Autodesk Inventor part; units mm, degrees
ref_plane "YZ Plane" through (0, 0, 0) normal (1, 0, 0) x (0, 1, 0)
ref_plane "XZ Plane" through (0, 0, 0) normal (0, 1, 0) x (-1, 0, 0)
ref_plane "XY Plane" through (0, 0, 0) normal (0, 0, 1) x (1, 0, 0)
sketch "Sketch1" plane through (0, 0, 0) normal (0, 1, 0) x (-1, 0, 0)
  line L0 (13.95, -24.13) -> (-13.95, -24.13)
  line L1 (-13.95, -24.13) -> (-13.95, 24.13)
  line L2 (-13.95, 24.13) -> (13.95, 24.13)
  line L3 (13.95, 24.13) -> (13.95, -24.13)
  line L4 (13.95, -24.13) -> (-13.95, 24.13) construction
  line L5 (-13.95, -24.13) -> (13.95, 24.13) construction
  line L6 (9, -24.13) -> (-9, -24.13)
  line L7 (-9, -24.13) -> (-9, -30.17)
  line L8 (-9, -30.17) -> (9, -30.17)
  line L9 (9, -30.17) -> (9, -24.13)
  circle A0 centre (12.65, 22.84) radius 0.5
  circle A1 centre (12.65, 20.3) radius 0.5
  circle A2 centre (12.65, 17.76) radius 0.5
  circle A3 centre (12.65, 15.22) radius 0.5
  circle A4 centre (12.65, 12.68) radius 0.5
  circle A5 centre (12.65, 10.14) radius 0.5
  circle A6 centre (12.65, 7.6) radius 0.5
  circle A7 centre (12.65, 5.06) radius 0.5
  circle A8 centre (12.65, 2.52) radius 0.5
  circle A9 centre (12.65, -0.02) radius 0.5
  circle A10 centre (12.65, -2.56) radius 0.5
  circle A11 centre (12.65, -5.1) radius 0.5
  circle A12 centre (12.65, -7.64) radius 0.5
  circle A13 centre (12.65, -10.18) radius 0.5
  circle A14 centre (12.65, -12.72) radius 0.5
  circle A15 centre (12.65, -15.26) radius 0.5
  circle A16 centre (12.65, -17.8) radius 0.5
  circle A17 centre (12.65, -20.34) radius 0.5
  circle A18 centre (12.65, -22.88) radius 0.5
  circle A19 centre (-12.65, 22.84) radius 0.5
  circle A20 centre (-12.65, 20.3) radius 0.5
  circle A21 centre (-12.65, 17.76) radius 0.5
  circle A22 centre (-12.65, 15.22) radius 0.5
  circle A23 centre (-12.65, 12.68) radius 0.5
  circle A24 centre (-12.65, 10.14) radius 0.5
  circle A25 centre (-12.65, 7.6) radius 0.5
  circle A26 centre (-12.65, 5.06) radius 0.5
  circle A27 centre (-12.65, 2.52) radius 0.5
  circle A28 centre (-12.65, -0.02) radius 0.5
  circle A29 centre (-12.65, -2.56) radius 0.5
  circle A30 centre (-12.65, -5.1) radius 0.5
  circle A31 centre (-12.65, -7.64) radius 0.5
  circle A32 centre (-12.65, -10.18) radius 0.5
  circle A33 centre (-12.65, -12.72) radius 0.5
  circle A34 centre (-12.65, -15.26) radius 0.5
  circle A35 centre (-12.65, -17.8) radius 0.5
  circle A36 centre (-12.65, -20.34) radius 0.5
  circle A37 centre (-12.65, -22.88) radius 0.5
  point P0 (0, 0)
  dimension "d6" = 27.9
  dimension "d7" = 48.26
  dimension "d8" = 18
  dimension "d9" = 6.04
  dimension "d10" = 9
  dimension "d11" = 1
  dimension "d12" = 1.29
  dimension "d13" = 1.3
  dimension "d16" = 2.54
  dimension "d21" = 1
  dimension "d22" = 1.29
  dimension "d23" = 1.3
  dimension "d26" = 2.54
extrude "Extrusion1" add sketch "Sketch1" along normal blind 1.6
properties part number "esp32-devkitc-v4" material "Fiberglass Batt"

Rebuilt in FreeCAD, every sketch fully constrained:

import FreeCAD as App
import Part
import Sketcher

V = App.Vector

doc = App.newDocument("Part")
body = doc.addObject("PartDesign::Body", "Body")

sketch1 = body.newObject("Sketcher::SketchObject", "Sketch")
sketch1.AttachmentSupport = (doc.getObject("XZ_Plane"), [""])
sketch1.MapMode = "FlatFace"
sketch1.addGeometry([
    Part.LineSegment(V(-9, -24.13, 0), V(-13.95, -24.13, 0)),
    Part.LineSegment(V(-13.95, -24.13, 0), V(-13.95, 24.13, 0)),
    Part.LineSegment(V(-13.95, 24.13, 0), V(13.95, 24.13, 0)),
    Part.LineSegment(V(13.95, 24.13, 0), V(13.95, -24.13, 0)),
    Part.LineSegment(V(13.95, -24.13, 0), V(9, -24.13, 0)),
    Part.LineSegment(V(9, -24.13, 0), V(9, -30.17, 0)),
    Part.LineSegment(V(9, -30.17, 0), V(-9, -30.17, 0)),
    Part.LineSegment(V(-9, -30.17, 0), V(-9, -24.13, 0)),
    Part.Circle(V(12.65, -22.88, 0), V(0, 0, 1), 0.5),
    Part.Circle(V(12.65, -20.34, 0), V(0, 0, 1), 0.5),
    Part.Circle(V(12.65, -17.8, 0), V(0, 0, 1), 0.5),
    Part.Circle(V(12.65, -15.26, 0), V(0, 0, 1), 0.5),
    Part.Circle(V(12.65, -12.72, 0), V(0, 0, 1), 0.5),
    Part.Circle(V(12.65, -10.18, 0), V(0, 0, 1), 0.5),
    Part.Circle(V(12.65, -7.64, 0), V(0, 0, 1), 0.5),
    Part.Circle(V(12.65, -5.1, 0), V(0, 0, 1), 0.5),
    Part.Circle(V(-12.65, -22.88, 0), V(0, 0, 1), 0.5),
    Part.Circle(V(-12.65, -20.34, 0), V(0, 0, 1), 0.5),
    Part.Circle(V(-12.65, -17.8, 0), V(0, 0, 1), 0.5),
    Part.Circle(V(-12.65, -15.26, 0), V(0, 0, 1), 0.5),
    Part.Circle(V(-12.65, -12.72, 0), V(0, 0, 1), 0.5),
    Part.Circle(V(-12.65, -10.18, 0), V(0, 0, 1), 0.5),
    Part.Circle(V(-12.65, -7.64, 0), V(0, 0, 1), 0.5),
    Part.Circle(V(-12.65, -5.1, 0), V(0, 0, 1), 0.5),
    Part.Circle(V(12.65, -2.56, 0), V(0, 0, 1), 0.5),
    Part.Circle(V(12.65, -0.02, 0), V(0, 0, 1), 0.5),
    Part.Circle(V(12.65, 2.52, 0), V(0, 0, 1), 0.5),
    Part.Circle(V(12.65, 5.06, 0), V(0, 0, 1), 0.5),
    Part.Circle(V(12.65, 7.6, 0), V(0, 0, 1), 0.5),
    Part.Circle(V(12.65, 10.14, 0), V(0, 0, 1), 0.5),
    Part.Circle(V(12.65, 12.68, 0), V(0, 0, 1), 0.5),
    Part.Circle(V(12.65, 15.22, 0), V(0, 0, 1), 0.5),
    Part.Circle(V(12.65, 17.76, 0), V(0, 0, 1), 0.5),
    Part.Circle(V(12.65, 20.3, 0), V(0, 0, 1), 0.5),
    Part.Circle(V(12.65, 22.84, 0), V(0, 0, 1), 0.5),
    Part.Circle(V(-12.65, -2.56, 0), V(0, 0, 1), 0.5),
    Part.Circle(V(-12.65, -0.02, 0), V(0, 0, 1), 0.5),
    Part.Circle(V(-12.65, 2.52, 0), V(0, 0, 1), 0.5),
    Part.Circle(V(-12.65, 5.06, 0), V(0, 0, 1), 0.5),
    Part.Circle(V(-12.65, 7.6, 0), V(0, 0, 1), 0.5),
    Part.Circle(V(-12.65, 10.14, 0), V(0, 0, 1), 0.5),
    Part.Circle(V(-12.65, 12.68, 0), V(0, 0, 1), 0.5),
    Part.Circle(V(-12.65, 15.22, 0), V(0, 0, 1), 0.5),
    Part.Circle(V(-12.65, 17.76, 0), V(0, 0, 1), 0.5),
    Part.Circle(V(-12.65, 20.3, 0), V(0, 0, 1), 0.5),
    Part.Circle(V(-12.65, 22.84, 0), V(0, 0, 1), 0.5),
], False)
sketch1.addConstraint([
    Sketcher.Constraint("Coincident", 0, 2, 1, 1),
    Sketcher.Constraint("Coincident", 1, 2, 2, 1),
    Sketcher.Constraint("Coincident", 2, 2, 3, 1),
    Sketcher.Constraint("Coincident", 3, 2, 4, 1),
    Sketcher.Constraint("Coincident", 4, 2, 5, 1),
    Sketcher.Constraint("Coincident", 5, 2, 6, 1),
    Sketcher.Constraint("Coincident", 6, 2, 7, 1),
    Sketcher.Constraint("Coincident", 7, 2, 0, 1),
    Sketcher.Constraint("Horizontal", 0),
    Sketcher.Constraint("Vertical", 1),
    Sketcher.Constraint("Horizontal", 2),
    Sketcher.Constraint("Vertical", 3),
    Sketcher.Constraint("Horizontal", 4),
    Sketcher.Constraint("Vertical", 5),
    Sketcher.Constraint("Horizontal", 6),
    Sketcher.Constraint("Vertical", 7),
    Sketcher.Constraint("Equal", 8, 9),
    Sketcher.Constraint("Equal", 9, 10),
    Sketcher.Constraint("Equal", 10, 11),
    Sketcher.Constraint("Equal", 11, 12),
    Sketcher.Constraint("Equal", 12, 13),
    Sketcher.Constraint("Equal", 13, 14),
    Sketcher.Constraint("Equal", 14, 15),
    Sketcher.Constraint("Equal", 15, 16),
    Sketcher.Constraint("Equal", 16, 17),
    Sketcher.Constraint("Equal", 17, 18),
    Sketcher.Constraint("Equal", 18, 19),
    Sketcher.Constraint("Equal", 19, 20),
    Sketcher.Constraint("Equal", 20, 21),
    Sketcher.Constraint("Equal", 21, 22),
    Sketcher.Constraint("Equal", 22, 23),
    Sketcher.Constraint("Equal", 23, 24),
    Sketcher.Constraint("Equal", 24, 25),
    Sketcher.Constraint("Equal", 25, 26),
    Sketcher.Constraint("Equal", 26, 27),
    Sketcher.Constraint("Equal", 27, 28),
    Sketcher.Constraint("Equal", 28, 29),
    Sketcher.Constraint("Equal", 29, 30),
    Sketcher.Constraint("Equal", 30, 31),
    Sketcher.Constraint("Equal", 31, 32),
    Sketcher.Constraint("Equal", 32, 33),
    Sketcher.Constraint("Equal", 33, 34),
    Sketcher.Constraint("Equal", 34, 35),
    Sketcher.Constraint("Equal", 35, 36),
    Sketcher.Constraint("Equal", 36, 37),
    Sketcher.Constraint("Equal", 37, 38),
    Sketcher.Constraint("Equal", 38, 39),
    Sketcher.Constraint("Equal", 39, 40),
    Sketcher.Constraint("Equal", 40, 41),
    Sketcher.Constraint("Equal", 41, 42),
    Sketcher.Constraint("Equal", 42, 43),
    Sketcher.Constraint("Equal", 43, 44),
    Sketcher.Constraint("Equal", 44, 45),
    Sketcher.Constraint("Symmetric", 0, 2, 2, 2, -1, 1),
    Sketcher.Constraint("Symmetric", 8, 3, 16, 3, -2),
    Sketcher.Constraint("Symmetric", 9, 3, 17, 3, -2),
    Sketcher.Constraint("Symmetric", 10, 3, 18, 3, -2),
    Sketcher.Constraint("Symmetric", 11, 3, 19, 3, -2),
    Sketcher.Constraint("Symmetric", 12, 3, 20, 3, -2),
    Sketcher.Constraint("Symmetric", 13, 3, 21, 3, -2),
    Sketcher.Constraint("Symmetric", 14, 3, 22, 3, -2),
    Sketcher.Constraint("Symmetric", 15, 3, 23, 3, -2),
    Sketcher.Constraint("Symmetric", 24, 3, 35, 3, -2),
    Sketcher.Constraint("Symmetric", 25, 3, 36, 3, -2),
    Sketcher.Constraint("Symmetric", 26, 3, 37, 3, -2),
    Sketcher.Constraint("Symmetric", 27, 3, 38, 3, -2),
    Sketcher.Constraint("Symmetric", 28, 3, 39, 3, -2),
    Sketcher.Constraint("Symmetric", 29, 3, 40, 3, -2),
    Sketcher.Constraint("Symmetric", 30, 3, 41, 3, -2),
    Sketcher.Constraint("Symmetric", 31, 3, 42, 3, -2),
    Sketcher.Constraint("Symmetric", 32, 3, 43, 3, -2),
    Sketcher.Constraint("Symmetric", 33, 3, 44, 3, -2),
    Sketcher.Constraint("Symmetric", 34, 3, 45, 3, -2),
    Sketcher.Constraint("Symmetric", 4, 2, 7, 2, -2),
    Sketcher.Constraint("Vertical", 8, 3, 9, 3),
    Sketcher.Constraint("Vertical", 9, 3, 10, 3),
    Sketcher.Constraint("Vertical", 10, 3, 11, 3),
    Sketcher.Constraint("Vertical", 11, 3, 12, 3),
    Sketcher.Constraint("Vertical", 12, 3, 13, 3),
    Sketcher.Constraint("Vertical", 13, 3, 14, 3),
    Sketcher.Constraint("Vertical", 14, 3, 15, 3),
    Sketcher.Constraint("Vertical", 15, 3, 24, 3),
    Sketcher.Constraint("Vertical", 24, 3, 25, 3),
    Sketcher.Constraint("Vertical", 25, 3, 26, 3),
    Sketcher.Constraint("Vertical", 26, 3, 27, 3),
    Sketcher.Constraint("Vertical", 27, 3, 28, 3),
    Sketcher.Constraint("Vertical", 28, 3, 29, 3),
    Sketcher.Constraint("Vertical", 29, 3, 30, 3),
    Sketcher.Constraint("Vertical", 30, 3, 31, 3),
    Sketcher.Constraint("Vertical", 31, 3, 32, 3),
    Sketcher.Constraint("Vertical", 32, 3, 33, 3),
    Sketcher.Constraint("Vertical", 33, 3, 34, 3),
    Sketcher.Constraint("Diameter", 8, 1.0),
    Sketcher.Constraint("DistanceX", 6, 2, 6, 1, 18.0),
    Sketcher.Constraint("DistanceX", 2, 1, 2, 2, 27.9),
    Sketcher.Constraint("DistanceY", 1, 1, 1, 2, 48.26),
    Sketcher.Constraint("DistanceY", 5, 2, 5, 1, 6.04),
    Sketcher.Constraint("DistanceX", 0, 2, 16, 3, 1.3),
    Sketcher.Constraint("DistanceY", 8, 3, 9, 3, 2.54),
    Sketcher.Constraint("DistanceY", 9, 3, 10, 3, 2.54),
    Sketcher.Constraint("DistanceY", 10, 3, 11, 3, 2.54),
    Sketcher.Constraint("DistanceY", 11, 3, 12, 3, 2.54),
    Sketcher.Constraint("DistanceY", 12, 3, 13, 3, 2.54),
    Sketcher.Constraint("DistanceY", 13, 3, 14, 3, 2.54),
    Sketcher.Constraint("DistanceY", 14, 3, 15, 3, 2.54),
    Sketcher.Constraint("DistanceY", 15, 3, 24, 3, 2.54),
    Sketcher.Constraint("DistanceY", 24, 3, 25, 3, 2.54),
    Sketcher.Constraint("DistanceY", 25, 3, 26, 3, 2.54),
    Sketcher.Constraint("DistanceY", 26, 3, 27, 3, 2.54),
    Sketcher.Constraint("DistanceY", 27, 3, 28, 3, 2.54),
    Sketcher.Constraint("DistanceY", 28, 3, 29, 3, 2.54),
    Sketcher.Constraint("DistanceY", 29, 3, 30, 3, 2.54),
    Sketcher.Constraint("DistanceY", 30, 3, 31, 3, 2.54),
    Sketcher.Constraint("DistanceY", 31, 3, 32, 3, 2.54),
    Sketcher.Constraint("DistanceY", 32, 3, 33, 3, 2.54),
    Sketcher.Constraint("DistanceY", 33, 3, 34, 3, 2.54),
    Sketcher.Constraint("DistanceY", 45, 3, 1, 2, 1.29),
])
pad1 = body.newObject("PartDesign::Pad", "Pad")
pad1.Profile = sketch1
pad1.Length = 1.6
pad1.Reversed = True

doc.recompute()
